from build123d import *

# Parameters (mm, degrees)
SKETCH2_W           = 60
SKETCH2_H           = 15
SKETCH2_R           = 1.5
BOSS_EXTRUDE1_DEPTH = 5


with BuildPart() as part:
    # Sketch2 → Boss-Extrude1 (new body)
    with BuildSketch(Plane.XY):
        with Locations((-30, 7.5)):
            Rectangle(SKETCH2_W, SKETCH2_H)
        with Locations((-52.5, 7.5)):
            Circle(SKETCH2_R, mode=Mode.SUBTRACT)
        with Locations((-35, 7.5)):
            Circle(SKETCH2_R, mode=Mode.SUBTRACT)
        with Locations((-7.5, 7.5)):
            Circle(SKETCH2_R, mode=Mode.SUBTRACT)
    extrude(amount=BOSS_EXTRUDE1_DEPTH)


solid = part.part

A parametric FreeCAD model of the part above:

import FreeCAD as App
import Part
import Sketcher
Q = App.Units.Quantity


def add_polygon(sketch, points):
    """Adds a closed chain of lines whose ends are joined by coincident constraints."""
    first, n = sketch.GeometryCount, len(points)
    for a, b in zip(points, points[1:] + points[:1]):
        sketch.addGeometry(Part.LineSegment(App.Vector(*a, 0), App.Vector(*b, 0)), False)
    for i in range(n):
        sketch.addConstraint(Sketcher.Constraint("Coincident", first + i, 2, first + (i + 1) % n, 1))

doc = App.newDocument("Part")
body = doc.addObject("PartDesign::Body", "Body")

# Sketch on XY plane
sketch1 = doc.addObject("Sketcher::SketchObject", "Sketch")
body.addObject(sketch1)
sketch1.AttachmentSupport = (doc.XY_Plane, [""])
sketch1.MapMode = "FlatFace"
add_polygon(sketch1, [(-60, 15), (-60, 0), (0, 0), (0, 15)])  # lines 0-3
sketch1.addGeometry(Part.Circle(App.Vector(-52.5, 7.5, 0), App.Vector(0, 0, 1), 1.5), False)  # 4
sketch1.addGeometry(Part.Circle(App.Vector(-35, 7.5, 0), App.Vector(0, 0, 1), 1.5), False)  # 5
sketch1.addGeometry(Part.Circle(App.Vector(-7.5, 7.5, 0), App.Vector(0, 0, 1), 1.5), False)  # 6
sketch1.addConstraint([
    Sketcher.Constraint("Vertical", 0),
    Sketcher.Constraint("Horizontal", 1),
    Sketcher.Constraint("Vertical", 2),
    Sketcher.Constraint("Horizontal", 3),
    Sketcher.Constraint("Coincident", 1, 2, -1, 1),
    Sketcher.Constraint("Equal", 4, 5),
    Sketcher.Constraint("Equal", 5, 6),
    Sketcher.Constraint("Horizontal", 4, 3, 5, 3),
    Sketcher.Constraint("Horizontal", 5, 3, 6, 3),
    Sketcher.Constraint("Diameter", 4, Q("3 mm")),
    Sketcher.Constraint("DistanceX", 1, 1, 1, 2, Q("60 mm")),
    Sketcher.Constraint("DistanceY", 0, 2, 0, 1, Q("15 mm")),
    Sketcher.Constraint("DistanceX", 5, 3, -1, 1, Q("35 mm")),
    Sketcher.Constraint("DistanceX", 4, 3, 6, 3, Q("45 mm")),
    Sketcher.Constraint("DistanceX", 4, 3, -1, 1, Q("52.5 mm")),
    Sketcher.Constraint("DistanceY", -1, 1, 4, 3, Q("7.5 mm")),
])
pad1 = doc.addObject("PartDesign::Pad", "Pad")
body.addObject(pad1)
pad1.Profile = sketch1
pad1.Length = 5

doc.recompute()
